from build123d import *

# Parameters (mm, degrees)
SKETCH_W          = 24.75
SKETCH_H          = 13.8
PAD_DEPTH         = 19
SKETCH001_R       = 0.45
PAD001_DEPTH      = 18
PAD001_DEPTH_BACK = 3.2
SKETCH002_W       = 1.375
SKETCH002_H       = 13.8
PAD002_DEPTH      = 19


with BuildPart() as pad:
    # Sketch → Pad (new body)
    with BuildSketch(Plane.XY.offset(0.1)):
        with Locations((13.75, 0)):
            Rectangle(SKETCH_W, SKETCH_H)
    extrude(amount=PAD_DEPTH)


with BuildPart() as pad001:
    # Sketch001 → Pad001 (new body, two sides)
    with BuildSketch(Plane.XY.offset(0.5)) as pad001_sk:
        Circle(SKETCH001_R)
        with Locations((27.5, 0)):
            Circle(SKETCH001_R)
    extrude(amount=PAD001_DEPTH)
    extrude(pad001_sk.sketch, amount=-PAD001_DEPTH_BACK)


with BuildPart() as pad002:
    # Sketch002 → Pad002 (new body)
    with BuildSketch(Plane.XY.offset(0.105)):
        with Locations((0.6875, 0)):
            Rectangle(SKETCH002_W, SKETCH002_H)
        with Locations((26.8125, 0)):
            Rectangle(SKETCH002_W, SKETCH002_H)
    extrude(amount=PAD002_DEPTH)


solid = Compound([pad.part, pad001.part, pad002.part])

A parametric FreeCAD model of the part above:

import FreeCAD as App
import Part
import Sketcher

V = App.Vector
Q = App.Units.Quantity

doc = App.newDocument("Part")
body = doc.addObject("PartDesign::Body", "Body")

# Sketch on XY plane
sketch1 = body.newObject("Sketcher::SketchObject", "Sketch")
sketch1.AttachmentSupport = (doc.getObject("XY_Plane"), [""])
sketch1.MapMode = "FlatFace"
sketch1.AttachmentOffset = App.Placement(V(0, 0, 0.1), App.Rotation())
sketch1.addGeometry([
    Part.LineSegment(V(1, 7, 0), V(1, -7, 0)),
    Part.LineSegment(V(1, -7, 0), V(26, -7, 0)),
    Part.LineSegment(V(26, -7, 0), V(26, 7, 0)),
    Part.LineSegment(V(26, 7, 0), V(1, 7, 0)),
], False)
sketch1.addConstraint([
    Sketcher.Constraint("Coincident", 0, 2, 1, 1),
    Sketcher.Constraint("Coincident", 1, 2, 2, 1),
    Sketcher.Constraint("Coincident", 2, 2, 3, 1),
    Sketcher.Constraint("Coincident", 3, 2, 0, 1),
    Sketcher.Constraint("Vertical", 0),
    Sketcher.Constraint("Horizontal", 1),
    Sketcher.Constraint("Vertical", 2),
    Sketcher.Constraint("Horizontal", 3),
    Sketcher.Constraint("DistanceY", 0, 2, 0, 1, Q("13.8 mm")),
    Sketcher.Constraint("DistanceX", 1, 1, 1, 2, Q("24.75 mm")),
    Sketcher.Constraint("DistanceY", 0, 2, -1, 1, Q("6.9 mm")),
    Sketcher.Constraint("DistanceX", -1, 1, 0, 2, Q("1.375 mm")),
])
pad1 = body.newObject("PartDesign::Pad", "Pad")
pad1.Profile = sketch1
pad1.Length = 19
body2 = doc.addObject("PartDesign::Body", "Body001")
body2.AllowCompound = True

# Sketch on XY plane
sketch2 = body2.newObject("Sketcher::SketchObject", "Sketch001")
sketch2.AttachmentSupport = (doc.getObject("XY_Plane001"), [""])
sketch2.MapMode = "FlatFace"
sketch2.AttachmentOffset = App.Placement(V(0, 0, 0.5), App.Rotation())
sketch2.addGeometry([
    Part.Circle(V(0, 0, 0), V(0, 0, 1), 0.45),
    Part.Circle(V(27.5, 0, 0), V(0, 0, 1), 0.45),
], False)
sketch2.addConstraint([
    Sketcher.Constraint("Coincident", 0, 3, -1, 1),
    Sketcher.Constraint("Equal", 0, 1),
    Sketcher.Constraint("PointOnObject", 1, 3, -1),
    Sketcher.Constraint("Diameter", 0, Q("0.9 mm")),
    Sketcher.Constraint("DistanceX", -1, 1, 1, 3, Q("27.5 mm")),
])
pad2 = body2.newObject("PartDesign::Pad", "Pad001")
pad2.Profile = sketch2
pad2.Type = "TwoLengths"
pad2.Length = 18
pad2.Length2 = 3.2
body3 = doc.addObject("PartDesign::Body", "Body002")
body3.AllowCompound = True

# Sketch on XY plane
sketch3 = body3.newObject("Sketcher::SketchObject", "Sketch002")
sketch3.AttachmentSupport = (doc.getObject("XY_Plane002"), [""])
sketch3.MapMode = "FlatFace"
sketch3.AttachmentOffset = App.Placement(V(0, 0, 0.105), App.Rotation())
sketch3.addGeometry([
    Part.LineSegment(V(0, 6.9, 0), V(0, -6.9, 0)),  # 0
    Part.LineSegment(V(0, -6.9, 0), V(1.4, -6.9, 0)),  # 1
    Part.LineSegment(V(1.4, -6.9, 0), V(1.4, 6.9, 0)),  # 2
    Part.LineSegment(V(1.4, 6.9, 0), V(0, 6.9, 0)),  # 3
    Part.LineSegment(V(26.1, 6.9, 0), V(26.1, -6.9, 0)),  # 4
    Part.LineSegment(V(26.1, -6.9, 0), V(27.5, -6.9, 0)),  # 5
    Part.LineSegment(V(27.5, -6.9, 0), V(27.5, 6.9, 0)),  # 6
    Part.LineSegment(V(27.5, 6.9, 0), V(26.1, 6.9, 0)),  # 7
], False)
sketch3.addConstraint([
    Sketcher.Constraint("Coincident", 0, 2, 1, 1),
    Sketcher.Constraint("Coincident", 1, 2, 2, 1),
    Sketcher.Constraint("Coincident", 2, 2, 3, 1),
    Sketcher.Constraint("Coincident", 3, 2, 0, 1),
    Sketcher.Constraint("Coincident", 4, 2, 5, 1),
    Sketcher.Constraint("Coincident", 5, 2, 6, 1),
    Sketcher.Constraint("Coincident", 6, 2, 7, 1),
    Sketcher.Constraint("Coincident", 7, 2, 4, 1),
    Sketcher.Constraint("Vertical", 0),
    Sketcher.Constraint("Horizontal", 1),
    Sketcher.Constraint("Vertical", 2),
    Sketcher.Constraint("Horizontal", 3),
    Sketcher.Constraint("Vertical", 4),
    Sketcher.Constraint("Horizontal", 5),
    Sketcher.Constraint("Vertical", 6),
    Sketcher.Constraint("Horizontal", 7),
    Sketcher.Constraint("Symmetric", 0, 2, 3, 2, -1, 1),
    Sketcher.Constraint("Horizontal", 1, 2, 4, 2),
    Sketcher.Constraint("Horizontal", 3, 2, 6, 2),
    Sketcher.Constraint("Equal", 3, 5),
    Sketcher.Constraint("DistanceY", 0, 2, 0, 1, Q("13.8 mm")),
    Sketcher.Constraint("DistanceX", -1, 1, 5, 2, Q("27.5 mm")),
    Sketcher.Constraint("DistanceX", 1, 1, 1, 2, Q("1.375 mm")),
])
pad3 = body3.newObject("PartDesign::Pad", "Pad002")
pad3.Profile = sketch3
pad3.Length = 19

doc.recompute()
